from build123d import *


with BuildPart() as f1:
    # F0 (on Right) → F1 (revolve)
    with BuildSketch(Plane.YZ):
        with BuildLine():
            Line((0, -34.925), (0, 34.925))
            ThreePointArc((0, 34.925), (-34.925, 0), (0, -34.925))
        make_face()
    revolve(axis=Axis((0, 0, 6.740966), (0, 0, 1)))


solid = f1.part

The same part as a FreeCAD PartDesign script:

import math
import FreeCAD as App
import Part
import Sketcher
from FreeCAD import Vector
Q = App.Units.Quantity

doc = App.newDocument("Part")
params = doc.addObject("Spreadsheet::Sheet", "Params")
for row, (alias, value) in enumerate([
    ("sketch1_radius", "1.375 in"),
    ("revolution_angle", "360 deg"),
], start=1):
    params.set(f"A{row}", alias)
    params.set(f"B{row}", "=" + value)
    params.setAlias(f"B{row}", alias)

body = doc.addObject("PartDesign::Body", "Body")

# Sketch on YZ plane
sketch1 = body.newObject("Sketcher::SketchObject", "Sketch")
sketch1.AttachmentSupport = (doc.getObject("YZ_Plane"), [""])
sketch1.MapMode = "FlatFace"
sketch1.addGeometry([
    Part.LineSegment(Vector(0, -35, 0), Vector(0, 35, 0)),
    Part.ArcOfCircle(Part.Circle(Vector(0, 0, 0), Vector(0, 0, 1), 35), math.radians(90), math.radians(270)),
], False)
sketch1.addConstraint([
    Sketcher.Constraint("Coincident", 0, 1, 1, 2),
    Sketcher.Constraint("Coincident", 1, 1, 0, 2),
    Sketcher.Constraint("Vertical", 0),
    Sketcher.Constraint("Coincident", 1, 3, -1, 1),
    Sketcher.Constraint("PointOnObject", 0, 1, -2),
    Sketcher.Constraint("Radius", 1, Q("1.375 in")),
])
sketch1.setExpression("Constraints[5]", "Params.sketch1_radius")
revolution = body.newObject("PartDesign::Revolution", "Revolution")
revolution.Profile = sketch1
revolution.ReferenceAxis = (sketch1, ["V_Axis"])
revolution.setExpression("Angle", "Params.revolution_angle")

doc.recompute()
